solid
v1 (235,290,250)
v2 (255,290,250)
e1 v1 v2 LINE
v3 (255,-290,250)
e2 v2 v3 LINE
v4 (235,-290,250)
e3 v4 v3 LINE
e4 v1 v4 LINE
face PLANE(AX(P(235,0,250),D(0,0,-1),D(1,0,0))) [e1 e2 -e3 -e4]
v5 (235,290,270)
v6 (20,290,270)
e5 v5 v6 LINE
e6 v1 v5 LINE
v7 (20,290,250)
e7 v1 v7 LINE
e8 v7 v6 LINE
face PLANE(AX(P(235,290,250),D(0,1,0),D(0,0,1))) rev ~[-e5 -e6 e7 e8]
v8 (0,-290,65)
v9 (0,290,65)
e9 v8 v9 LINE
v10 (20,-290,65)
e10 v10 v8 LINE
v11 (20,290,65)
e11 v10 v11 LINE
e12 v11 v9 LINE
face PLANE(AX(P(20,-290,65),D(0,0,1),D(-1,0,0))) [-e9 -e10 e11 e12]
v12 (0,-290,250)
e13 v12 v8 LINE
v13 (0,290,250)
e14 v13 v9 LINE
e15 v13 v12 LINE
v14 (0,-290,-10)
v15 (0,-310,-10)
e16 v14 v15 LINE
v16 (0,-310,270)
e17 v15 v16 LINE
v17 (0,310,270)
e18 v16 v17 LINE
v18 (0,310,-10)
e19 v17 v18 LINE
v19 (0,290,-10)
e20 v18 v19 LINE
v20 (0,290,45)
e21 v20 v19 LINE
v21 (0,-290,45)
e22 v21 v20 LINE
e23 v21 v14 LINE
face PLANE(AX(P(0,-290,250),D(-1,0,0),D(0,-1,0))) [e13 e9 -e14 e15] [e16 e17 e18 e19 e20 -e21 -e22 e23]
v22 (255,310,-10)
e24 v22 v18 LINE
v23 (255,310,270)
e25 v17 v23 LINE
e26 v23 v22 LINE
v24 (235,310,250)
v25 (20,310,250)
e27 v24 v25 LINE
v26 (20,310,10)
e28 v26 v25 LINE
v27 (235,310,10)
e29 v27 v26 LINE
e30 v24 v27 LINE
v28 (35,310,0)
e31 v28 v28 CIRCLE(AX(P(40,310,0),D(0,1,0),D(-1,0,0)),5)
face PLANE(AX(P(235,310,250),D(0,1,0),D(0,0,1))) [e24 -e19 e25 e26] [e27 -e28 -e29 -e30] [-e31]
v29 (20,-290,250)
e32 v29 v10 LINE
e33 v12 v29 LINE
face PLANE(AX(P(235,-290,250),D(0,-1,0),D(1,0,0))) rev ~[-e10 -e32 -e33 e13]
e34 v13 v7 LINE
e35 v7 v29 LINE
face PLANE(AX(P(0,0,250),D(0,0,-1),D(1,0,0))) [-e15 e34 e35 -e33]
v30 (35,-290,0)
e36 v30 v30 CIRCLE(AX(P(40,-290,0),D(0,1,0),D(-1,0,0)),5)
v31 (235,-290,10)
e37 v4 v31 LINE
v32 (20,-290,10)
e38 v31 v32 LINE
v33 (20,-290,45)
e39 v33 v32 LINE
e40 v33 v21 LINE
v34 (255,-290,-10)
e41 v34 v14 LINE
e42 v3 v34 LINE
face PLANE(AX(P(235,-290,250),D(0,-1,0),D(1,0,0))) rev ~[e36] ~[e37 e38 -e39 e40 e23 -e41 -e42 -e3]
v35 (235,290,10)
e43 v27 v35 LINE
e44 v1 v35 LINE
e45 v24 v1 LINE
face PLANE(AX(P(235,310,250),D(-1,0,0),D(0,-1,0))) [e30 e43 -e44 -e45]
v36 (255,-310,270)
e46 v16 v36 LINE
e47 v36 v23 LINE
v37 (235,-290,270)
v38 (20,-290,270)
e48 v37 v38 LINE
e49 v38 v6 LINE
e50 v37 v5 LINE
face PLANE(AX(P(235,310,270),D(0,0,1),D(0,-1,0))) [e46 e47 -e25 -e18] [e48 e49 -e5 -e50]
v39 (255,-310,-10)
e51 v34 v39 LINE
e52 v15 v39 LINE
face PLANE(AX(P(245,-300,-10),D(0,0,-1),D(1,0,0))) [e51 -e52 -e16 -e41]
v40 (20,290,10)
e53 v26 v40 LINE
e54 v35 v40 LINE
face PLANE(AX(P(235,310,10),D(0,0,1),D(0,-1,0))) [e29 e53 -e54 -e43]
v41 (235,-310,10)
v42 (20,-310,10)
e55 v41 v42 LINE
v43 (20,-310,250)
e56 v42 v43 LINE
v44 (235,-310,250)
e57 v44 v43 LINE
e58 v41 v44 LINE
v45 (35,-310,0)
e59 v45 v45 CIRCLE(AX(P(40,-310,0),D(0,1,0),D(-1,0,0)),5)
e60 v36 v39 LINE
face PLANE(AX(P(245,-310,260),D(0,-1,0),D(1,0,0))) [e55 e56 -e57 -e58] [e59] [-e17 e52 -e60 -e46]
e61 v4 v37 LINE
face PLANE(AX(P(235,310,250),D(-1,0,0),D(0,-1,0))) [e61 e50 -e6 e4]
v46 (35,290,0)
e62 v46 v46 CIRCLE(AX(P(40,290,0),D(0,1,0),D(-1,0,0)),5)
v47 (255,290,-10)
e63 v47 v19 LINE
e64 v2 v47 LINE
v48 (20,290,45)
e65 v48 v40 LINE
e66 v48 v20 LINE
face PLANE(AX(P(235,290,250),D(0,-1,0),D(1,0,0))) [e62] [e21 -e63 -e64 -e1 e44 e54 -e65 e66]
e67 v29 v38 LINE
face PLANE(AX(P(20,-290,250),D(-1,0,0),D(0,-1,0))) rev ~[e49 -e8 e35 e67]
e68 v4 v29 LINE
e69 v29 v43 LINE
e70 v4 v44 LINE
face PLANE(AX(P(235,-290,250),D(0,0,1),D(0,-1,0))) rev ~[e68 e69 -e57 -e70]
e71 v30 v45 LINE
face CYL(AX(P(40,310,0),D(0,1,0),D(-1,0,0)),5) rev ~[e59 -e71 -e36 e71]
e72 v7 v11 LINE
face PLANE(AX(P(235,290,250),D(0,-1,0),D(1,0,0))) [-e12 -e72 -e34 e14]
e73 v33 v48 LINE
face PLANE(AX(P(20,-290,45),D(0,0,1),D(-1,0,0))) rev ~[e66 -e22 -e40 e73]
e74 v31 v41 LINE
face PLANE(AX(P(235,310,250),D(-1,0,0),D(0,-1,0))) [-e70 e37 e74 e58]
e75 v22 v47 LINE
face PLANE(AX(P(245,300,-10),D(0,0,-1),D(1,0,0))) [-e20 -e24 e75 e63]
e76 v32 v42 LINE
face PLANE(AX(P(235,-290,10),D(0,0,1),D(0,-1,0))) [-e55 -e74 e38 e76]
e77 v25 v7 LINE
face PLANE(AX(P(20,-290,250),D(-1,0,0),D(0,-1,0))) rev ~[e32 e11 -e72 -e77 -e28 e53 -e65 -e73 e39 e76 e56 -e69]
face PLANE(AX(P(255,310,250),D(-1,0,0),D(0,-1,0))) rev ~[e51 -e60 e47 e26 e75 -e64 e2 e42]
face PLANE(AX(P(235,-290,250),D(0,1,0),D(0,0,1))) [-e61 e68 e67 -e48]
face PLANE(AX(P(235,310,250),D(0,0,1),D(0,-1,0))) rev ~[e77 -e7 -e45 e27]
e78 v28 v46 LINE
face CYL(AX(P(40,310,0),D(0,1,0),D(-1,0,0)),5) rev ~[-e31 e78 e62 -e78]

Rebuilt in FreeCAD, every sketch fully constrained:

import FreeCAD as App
import Part
import Sketcher
Q = App.Units.Quantity

doc = App.newDocument("Part")
body = doc.addObject("PartDesign::Body", "Body")

# Sketch on XZ plane
sketch1 = body.newObject("Sketcher::SketchObject", "Sketch")
sketch1.AttachmentSupport = (doc.getObject("XZ_Plane"), [""])
sketch1.MapMode = "FlatFace"
sketch1.addGeometry(Part.LineSegment(App.Vector(0, 270, 0), App.Vector(0, 250, 0)), False)
sketch1.addGeometry(Part.LineSegment(App.Vector(0, 250, 0), App.Vector(20, 250, 0)), False)
sketch1.addGeometry(Part.LineSegment(App.Vector(20, 250, 0), App.Vector(20, 270, 0)), False)
sketch1.addGeometry(Part.LineSegment(App.Vector(20, 270, 0), App.Vector(0, 270, 0)), False)
sketch1.addConstraint(Sketcher.Constraint("Coincident", 0, 2, 1, 1))
sketch1.addConstraint(Sketcher.Constraint("Coincident", 1, 2, 2, 1))
sketch1.addConstraint(Sketcher.Constraint("Coincident", 2, 2, 3, 1))
sketch1.addConstraint(Sketcher.Constraint("Coincident", 3, 2, 0, 1))
sketch1.addConstraint(Sketcher.Constraint("Vertical", 0))
sketch1.addConstraint(Sketcher.Constraint("Horizontal", 1))
sketch1.addConstraint(Sketcher.Constraint("Vertical", 2))
sketch1.addConstraint(Sketcher.Constraint("Horizontal", 3))
sketch1.addConstraint(Sketcher.Constraint("PointOnObject", 0, 2, -2))
sketch1.addConstraint(Sketcher.Constraint("Equal", 3, 0))
sketch1.addConstraint(Sketcher.Constraint("DistanceX", 1, 1, 1, 2, Q("20 mm")))
sketch1.addConstraint(Sketcher.Constraint("DistanceY", -1, 1, 0, 2, Q("250 mm")))
pad1 = body.newObject("PartDesign::Pad", "Pad")
pad1.Profile = sketch1
pad1.Length = 620
pad1.Midplane = True

# Sketch on XY plane
sketch2 = body.newObject("Sketcher::SketchObject", "Sketch001")
sketch2.AttachmentSupport = (doc.getObject("XY_Plane"), [""])
sketch2.MapMode = "FlatFace"
sketch2.AttachmentOffset = App.Placement(App.Vector(0, 0, 250), App.Rotation())
sketch2.addGeometry(Part.LineSegment(App.Vector(0, -310, 0), App.Vector(0, -290, 0)), False)
sketch2.addGeometry(Part.LineSegment(App.Vector(0, -290, 0), App.Vector(20, -290, 0)), False)
sketch2.addGeometry(Part.LineSegment(App.Vector(20, -290, 0), App.Vector(20, -310, 0)), False)
sketch2.addGeometry(Part.LineSegment(App.Vector(20, -310, 0), App.Vector(0, -310, 0)), False)
sketch2.addGeometry(Part.LineSegment(App.Vector(0, 290, 0), App.Vector(0, 310, 0)), False)
sketch2.addGeometry(Part.LineSegment(App.Vector(0, 310, 0), App.Vector(20, 310, 0)), False)
sketch2.addGeometry(Part.LineSegment(App.Vector(20, 310, 0), App.Vector(20, 290, 0)), False)
sketch2.addGeometry(Part.LineSegment(App.Vector(20, 290, 0), App.Vector(0, 290, 0)), False)
sketch2.addConstraint(Sketcher.Constraint("Coincident", 0, 2, 1, 1))
sketch2.addConstraint(Sketcher.Constraint("Coincident", 1, 2, 2, 1))
sketch2.addConstraint(Sketcher.Constraint("Coincident", 2, 2, 3, 1))
sketch2.addConstraint(Sketcher.Constraint("Coincident", 3, 2, 0, 1))
sketch2.addConstraint(Sketcher.Constraint("Coincident", 4, 2, 5, 1))
sketch2.addConstraint(Sketcher.Constraint("Coincident", 5, 2, 6, 1))
sketch2.addConstraint(Sketcher.Constraint("Coincident", 6, 2, 7, 1))
sketch2.addConstraint(Sketcher.Constraint("Coincident", 7, 2, 4, 1))
sketch2.addConstraint(Sketcher.Constraint("Vertical", 0))
sketch2.addConstraint(Sketcher.Constraint("Horizontal", 1))
sketch2.addConstraint(Sketcher.Constraint("Vertical", 2))
sketch2.addConstraint(Sketcher.Constraint("Horizontal", 3))
sketch2.addConstraint(Sketcher.Constraint("Vertical", 4))
sketch2.addConstraint(Sketcher.Constraint("Horizontal", 5))
sketch2.addConstraint(Sketcher.Constraint("Vertical", 6))
sketch2.addConstraint(Sketcher.Constraint("Horizontal", 7))
sketch2.addConstraint(Sketcher.Constraint("Symmetric", 3, 2, 4, 2, -1, 1))
sketch2.addConstraint(Sketcher.Constraint("Symmetric", 1, 2, 6, 2, -1))
sketch2.addConstraint(Sketcher.Constraint("PointOnObject", 0, 2, -2))
sketch2.addConstraint(Sketcher.Constraint("Equal", 7, 0))
sketch2.addConstraint(Sketcher.Constraint("DistanceX", 1, 1, 1, 2, Q("20 mm")))
sketch2.addConstraint(Sketcher.Constraint("DistanceY", 0, 2, -1, 1, Q("290 mm")))
pad2 = body.newObject("PartDesign::Pad", "Pad001")
pad2.Profile = sketch2
pad2.Length = 260
pad2.Reversed = True
body2 = doc.addObject("PartDesign::Body", "Body001")

# Sketch on XZ plane
sketch3 = body2.newObject("Sketcher::SketchObject", "Sketch002")
sketch3.AttachmentSupport = (doc.getObject("XZ_Plane001"), [""])
sketch3.MapMode = "FlatFace"
sketch3.addGeometry(Part.LineSegment(App.Vector(235, 270, 0), App.Vector(235, 250, 0)), False)
sketch3.addGeometry(Part.LineSegment(App.Vector(235, 250, 0), App.Vector(255, 250, 0)), False)
sketch3.addGeometry(Part.LineSegment(App.Vector(255, 250, 0), App.Vector(255, 270, 0)), False)
sketch3.addGeometry(Part.LineSegment(App.Vector(255, 270, 0), App.Vector(235, 270, 0)), False)
sketch3.addConstraint(Sketcher.Constraint("Coincident", 0, 2, 1, 1))
sketch3.addConstraint(Sketcher.Constraint("Coincident", 1, 2, 2, 1))
sketch3.addConstraint(Sketcher.Constraint("Coincident", 2, 2, 3, 1))
sketch3.addConstraint(Sketcher.Constraint("Coincident", 3, 2, 0, 1))
sketch3.addConstraint(Sketcher.Constraint("Vertical", 0))
sketch3.addConstraint(Sketcher.Constraint("Horizontal", 1))
sketch3.addConstraint(Sketcher.Constraint("Vertical", 2))
sketch3.addConstraint(Sketcher.Constraint("Horizontal", 3))
sketch3.addConstraint(Sketcher.Constraint("Equal", 3, 0))
sketch3.addConstraint(Sketcher.Constraint("DistanceX", 1, 1, 1, 2, Q("20 mm")))
sketch3.addConstraint(Sketcher.Constraint("DistanceX", -1, 1, 0, 2, Q("235 mm")))
sketch3.addConstraint(Sketcher.Constraint("DistanceY", -1, 1, 0, 2, Q("250 mm")))
pad3 = body2.newObject("PartDesign::Pad", "Pad002")
pad3.Profile = sketch3
pad3.Length = 620
pad3.Midplane = True

# Sketch on XY plane
sketch4 = body2.newObject("Sketcher::SketchObject", "Sketch003")
sketch4.AttachmentSupport = (doc.getObject("XY_Plane001"), [""])
sketch4.MapMode = "FlatFace"
sketch4.AttachmentOffset = App.Placement(App.Vector(0, 0, 250), App.Rotation())
sketch4.addGeometry(Part.LineSegment(App.Vector(235, 290, 0), App.Vector(235, 310, 0)), False)
sketch4.addGeometry(Part.LineSegment(App.Vector(235, 310, 0), App.Vector(255, 310, 0)), False)
sketch4.addGeometry(Part.LineSegment(App.Vector(255, 310, 0), App.Vector(255, 290, 0)), False)
sketch4.addGeometry(Part.LineSegment(App.Vector(255, 290, 0), App.Vector(235, 290, 0)), False)
sketch4.addGeometry(Part.LineSegment(App.Vector(235, -310, 0), App.Vector(235, -290, 0)), False)
sketch4.addGeometry(Part.LineSegment(App.Vector(235, -290, 0), App.Vector(255, -290, 0)), False)
sketch4.addGeometry(Part.LineSegment(App.Vector(255, -290, 0), App.Vector(255, -310, 0)), False)
sketch4.addGeometry(Part.LineSegment(App.Vector(255, -310, 0), App.Vector(235, -310, 0)), False)
sketch4.addConstraint(Sketcher.Constraint("Coincident", 0, 2, 1, 1))
sketch4.addConstraint(Sketcher.Constraint("Coincident", 1, 2, 2, 1))
sketch4.addConstraint(Sketcher.Constraint("Coincident", 2, 2, 3, 1))
sketch4.addConstraint(Sketcher.Constraint("Coincident", 3, 2, 0, 1))
sketch4.addConstraint(Sketcher.Constraint("Coincident", 4, 2, 5, 1))
sketch4.addConstraint(Sketcher.Constraint("Coincident", 5, 2, 6, 1))
sketch4.addConstraint(Sketcher.Constraint("Coincident", 6, 2, 7, 1))
sketch4.addConstraint(Sketcher.Constraint("Coincident", 7, 2, 4, 1))
sketch4.addConstraint(Sketcher.Constraint("Vertical", 0))
sketch4.addConstraint(Sketcher.Constraint("Horizontal", 1))
sketch4.addConstraint(Sketcher.Constraint("Vertical", 2))
sketch4.addConstraint(Sketcher.Constraint("Horizontal", 3))
sketch4.addConstraint(Sketcher.Constraint("Vertical", 4))
sketch4.addConstraint(Sketcher.Constraint("Horizontal", 5))
sketch4.addConstraint(Sketcher.Constraint("Vertical", 6))
sketch4.addConstraint(Sketcher.Constraint("Horizontal", 7))
sketch4.addConstraint(Sketcher.Constraint("Symmetric", 3, 2, 4, 2, -1))
sketch4.addConstraint(Sketcher.Constraint("Symmetric", 1, 2, 6, 2, -1))
sketch4.addConstraint(Sketcher.Constraint("Equal", 7, 0))
sketch4.addConstraint(Sketcher.Constraint("DistanceX", 1, 1, 1, 2, Q("20 mm")))
sketch4.addConstraint(Sketcher.Constraint("DistanceX", -1, 1, 0, 2, Q("235 mm")))
sketch4.addConstraint(Sketcher.Constraint("DistanceY", -1, 1, 0, 2, Q("310 mm")))
pad4 = body2.newObject("PartDesign::Pad", "Pad003")
pad4.Profile = sketch4
pad4.Length = 260
pad4.Reversed = True
body.AllowCompound = True
doc.recompute()

boolean = body.newObject("PartDesign::Boolean", "Boolean")
boolean.Type = "Fuse"
boolean.addObjects([body2])

# Sketch on YZ plane
sketch5 = body.newObject("Sketcher::SketchObject", "Sketch004")
sketch5.AttachmentSupport = (doc.getObject("YZ_Plane"), [""])
sketch5.MapMode = "FlatFace"
sketch5.AttachmentOffset = App.Placement(App.Vector(0, 0, 235), App.Rotation())
sketch5.addGeometry(Part.LineSegment(App.Vector(310, 270, 0), App.Vector(310, 250, 0)), False)
sketch5.addGeometry(Part.LineSegment(App.Vector(310, 250, 0), App.Vector(290, 250, 0)), False)
sketch5.addGeometry(Part.LineSegment(App.Vector(290, 250, 0), App.Vector(290, 270, 0)), False)
sketch5.addGeometry(Part.LineSegment(App.Vector(290, 270, 0), App.Vector(310, 270, 0)), False)
sketch5.addGeometry(Part.LineSegment(App.Vector(310, 10, 0), App.Vector(310, -10, 0)), False)
sketch5.addGeometry(Part.LineSegment(App.Vector(310, -10, 0), App.Vector(290, -10, 0)), False)
sketch5.addGeometry(Part.LineSegment(App.Vector(290, -10, 0), App.Vector(290, 10, 0)), False)
sketch5.addGeometry(Part.LineSegment(App.Vector(290, 10, 0), App.Vector(310, 10, 0)), False)
sketch5.addGeometry(Part.LineSegment(App.Vector(-290, 10, 0), App.Vector(-290, -10, 0)), False)
sketch5.addGeometry(Part.LineSegment(App.Vector(-290, -10, 0), App.Vector(-310, -10, 0)), False)
sketch5.addGeometry(Part.LineSegment(App.Vector(-310, -10, 0), App.Vector(-310, 10, 0)), False)
sketch5.addGeometry(Part.LineSegment(App.Vector(-310, 10, 0), App.Vector(-290, 10, 0)), False)
sketch5.addGeometry(Part.LineSegment(App.Vector(-290, 270, 0), App.Vector(-290, 250, 0)), False)
sketch5.addGeometry(Part.LineSegment(App.Vector(-290, 250, 0), App.Vector(-310, 250, 0)), False)
sketch5.addGeometry(Part.LineSegment(App.Vector(-310, 250, 0), App.Vector(-310, 270, 0)), False)
sketch5.addGeometry(Part.LineSegment(App.Vector(-310, 270, 0), App.Vector(-290, 270, 0)), False)
sketch5.addConstraint(Sketcher.Constraint("Coincident", 0, 2, 1, 1))
sketch5.addConstraint(Sketcher.Constraint("Coincident", 1, 2, 2, 1))
sketch5.addConstraint(Sketcher.Constraint("Coincident", 2, 2, 3, 1))
sketch5.addConstraint(Sketcher.Constraint("Coincident", 3, 2, 0, 1))
sketch5.addConstraint(Sketcher.Constraint("Coincident", 4, 2, 5, 1))
sketch5.addConstraint(Sketcher.Constraint("Coincident", 5, 2, 6, 1))
sketch5.addConstraint(Sketcher.Constraint("Coincident", 6, 2, 7, 1))
sketch5.addConstraint(Sketcher.Constraint("Coincident", 7, 2, 4, 1))
sketch5.addConstraint(Sketcher.Constraint("Coincident", 8, 2, 9, 1))
sketch5.addConstraint(Sketcher.Constraint("Coincident", 9, 2, 10, 1))
sketch5.addConstraint(Sketcher.Constraint("Coincident", 10, 2, 11, 1))
sketch5.addConstraint(Sketcher.Constraint("Coincident", 11, 2, 8, 1))
sketch5.addConstraint(Sketcher.Constraint("Coincident", 12, 2, 13, 1))
sketch5.addConstraint(Sketcher.Constraint("Coincident", 13, 2, 14, 1))
sketch5.addConstraint(Sketcher.Constraint("Coincident", 14, 2, 15, 1))
sketch5.addConstraint(Sketcher.Constraint("Coincident", 15, 2, 12, 1))
sketch5.addConstraint(Sketcher.Constraint("Vertical", 0))
sketch5.addConstraint(Sketcher.Constraint("Horizontal", 1))
sketch5.addConstraint(Sketcher.Constraint("Vertical", 2))
sketch5.addConstraint(Sketcher.Constraint("Horizontal", 3))
sketch5.addConstraint(Sketcher.Constraint("Vertical", 4))
sketch5.addConstraint(Sketcher.Constraint("Horizontal", 5))
sketch5.addConstraint(Sketcher.Constraint("Vertical", 6))
sketch5.addConstraint(Sketcher.Constraint("Horizontal", 7))
sketch5.addConstraint(Sketcher.Constraint("Vertical", 8))
sketch5.addConstraint(Sketcher.Constraint("Horizontal", 9))
sketch5.addConstraint(Sketcher.Constraint("Vertical", 10))
sketch5.addConstraint(Sketcher.Constraint("Horizontal", 11))
sketch5.addConstraint(Sketcher.Constraint("Vertical", 12))
sketch5.addConstraint(Sketcher.Constraint("Horizontal", 13))
sketch5.addConstraint(Sketcher.Constraint("Vertical", 14))
sketch5.addConstraint(Sketcher.Constraint("Horizontal", 15))
sketch5.addConstraint(Sketcher.Constraint("Symmetric", 6, 2, 8, 2, -1, 1))
sketch5.addConstraint(Sketcher.Constraint("Symmetric", 4, 2, 10, 2, -1, 1))
sketch5.addConstraint(Sketcher.Constraint("Symmetric", 1, 2, 12, 2, -2))
sketch5.addConstraint(Sketcher.Constraint("Symmetric", 3, 2, 14, 2, -2))
sketch5.addConstraint(Sketcher.Constraint("Horizontal", 5, 2, 8, 2))
sketch5.addConstraint(Sketcher.Constraint("Vertical", 3, 2, 4, 2))
sketch5.addConstraint(Sketcher.Constraint("Vertical", 2, 2, 5, 2))
sketch5.addConstraint(Sketcher.Constraint("Equal", 15, 0))
sketch5.addConstraint(Sketcher.Constraint("Equal", 2, 4))
sketch5.addConstraint(Sketcher.Constraint("DistanceX", 1, 2, 1, 1, Q("20 mm")))
sketch5.addConstraint(Sketcher.Constraint("DistanceX", -1, 1, 0, 2, Q("310 mm")))
sketch5.addConstraint(Sketcher.Constraint("DistanceY", -1, 1, 0, 2, Q("250 mm")))
pad5 = body.newObject("PartDesign::Pad", "Pad004")
pad5.Profile = sketch5
pad5.Length = 215
pad5.Reversed = True

# Sketch on XZ plane
sketch6 = body.newObject("Sketcher::SketchObject", "Sketch005")
sketch6.AttachmentSupport = (doc.getObject("XZ_Plane"), [""])
sketch6.MapMode = "FlatFace"
sketch6.AttachmentOffset = App.Placement(App.Vector(0, 0, 290), App.Rotation())
sketch6.addGeometry(Part.LineSegment(App.Vector(20, 65, 0), App.Vector(20, 45, 0)), False)
sketch6.addGeometry(Part.LineSegment(App.Vector(20, 45, 0), App.Vector(0, 45, 0)), False)
sketch6.addGeometry(Part.LineSegment(App.Vector(0, 45, 0), App.Vector(0, 65, 0)), False)
sketch6.addGeometry(Part.LineSegment(App.Vector(0, 65, 0), App.Vector(20, 65, 0)), False)
sketch6.addConstraint(Sketcher.Constraint("Coincident", 0, 2, 1, 1))
sketch6.addConstraint(Sketcher.Constraint("Coincident", 1, 2, 2, 1))
sketch6.addConstraint(Sketcher.Constraint("Coincident", 2, 2, 3, 1))
sketch6.addConstraint(Sketcher.Constraint("Coincident", 3, 2, 0, 1))
sketch6.addConstraint(Sketcher.Constraint("Vertical", 0))
sketch6.addConstraint(Sketcher.Constraint("Horizontal", 1))
sketch6.addConstraint(Sketcher.Constraint("Vertical", 2))
sketch6.addConstraint(Sketcher.Constraint("Horizontal", 3))
sketch6.addConstraint(Sketcher.Constraint("PointOnObject", 1, 2, -2))
sketch6.addConstraint(Sketcher.Constraint("Equal", 3, 0))
sketch6.addConstraint(Sketcher.Constraint("DistanceX", 1, 2, 1, 1, Q("20 mm")))
sketch6.addConstraint(Sketcher.Constraint("DistanceY", -1, 1, 0, 2, Q("45 mm")))
pad6 = body.newObject("PartDesign::Pad", "Pad005")
pad6.Profile = sketch6
pad6.Type = "UpToLast"
pad6.Reversed = True

# Sketch on XZ plane
sketch7 = body.newObject("Sketcher::SketchObject", "Sketch006")
sketch7.AttachmentSupport = (doc.getObject("XZ_Plane"), [""])
sketch7.MapMode = "FlatFace"
sketch7.AttachmentOffset = App.Placement(App.Vector(0, 0, -310), App.Rotation())
sketch7.addGeometry(Part.Circle(App.Vector(40, 0, 0), App.Vector(0, 0, 1), 5), False)
sketch7.addConstraint(Sketcher.Constraint("PointOnObject", 0, 3, -1))
sketch7.addConstraint(Sketcher.Constraint("Diameter", 0, Q("10 mm")))
sketch7.addConstraint(Sketcher.Constraint("DistanceX", -1, 1, 0, 3, Q("40 mm")))
pocket1 = body.newObject("PartDesign::Pocket", "Pocket")
pocket1.Profile = sketch7
pocket1.Type = "ThroughAll"
pocket1.Reversed = True

doc.recompute()
